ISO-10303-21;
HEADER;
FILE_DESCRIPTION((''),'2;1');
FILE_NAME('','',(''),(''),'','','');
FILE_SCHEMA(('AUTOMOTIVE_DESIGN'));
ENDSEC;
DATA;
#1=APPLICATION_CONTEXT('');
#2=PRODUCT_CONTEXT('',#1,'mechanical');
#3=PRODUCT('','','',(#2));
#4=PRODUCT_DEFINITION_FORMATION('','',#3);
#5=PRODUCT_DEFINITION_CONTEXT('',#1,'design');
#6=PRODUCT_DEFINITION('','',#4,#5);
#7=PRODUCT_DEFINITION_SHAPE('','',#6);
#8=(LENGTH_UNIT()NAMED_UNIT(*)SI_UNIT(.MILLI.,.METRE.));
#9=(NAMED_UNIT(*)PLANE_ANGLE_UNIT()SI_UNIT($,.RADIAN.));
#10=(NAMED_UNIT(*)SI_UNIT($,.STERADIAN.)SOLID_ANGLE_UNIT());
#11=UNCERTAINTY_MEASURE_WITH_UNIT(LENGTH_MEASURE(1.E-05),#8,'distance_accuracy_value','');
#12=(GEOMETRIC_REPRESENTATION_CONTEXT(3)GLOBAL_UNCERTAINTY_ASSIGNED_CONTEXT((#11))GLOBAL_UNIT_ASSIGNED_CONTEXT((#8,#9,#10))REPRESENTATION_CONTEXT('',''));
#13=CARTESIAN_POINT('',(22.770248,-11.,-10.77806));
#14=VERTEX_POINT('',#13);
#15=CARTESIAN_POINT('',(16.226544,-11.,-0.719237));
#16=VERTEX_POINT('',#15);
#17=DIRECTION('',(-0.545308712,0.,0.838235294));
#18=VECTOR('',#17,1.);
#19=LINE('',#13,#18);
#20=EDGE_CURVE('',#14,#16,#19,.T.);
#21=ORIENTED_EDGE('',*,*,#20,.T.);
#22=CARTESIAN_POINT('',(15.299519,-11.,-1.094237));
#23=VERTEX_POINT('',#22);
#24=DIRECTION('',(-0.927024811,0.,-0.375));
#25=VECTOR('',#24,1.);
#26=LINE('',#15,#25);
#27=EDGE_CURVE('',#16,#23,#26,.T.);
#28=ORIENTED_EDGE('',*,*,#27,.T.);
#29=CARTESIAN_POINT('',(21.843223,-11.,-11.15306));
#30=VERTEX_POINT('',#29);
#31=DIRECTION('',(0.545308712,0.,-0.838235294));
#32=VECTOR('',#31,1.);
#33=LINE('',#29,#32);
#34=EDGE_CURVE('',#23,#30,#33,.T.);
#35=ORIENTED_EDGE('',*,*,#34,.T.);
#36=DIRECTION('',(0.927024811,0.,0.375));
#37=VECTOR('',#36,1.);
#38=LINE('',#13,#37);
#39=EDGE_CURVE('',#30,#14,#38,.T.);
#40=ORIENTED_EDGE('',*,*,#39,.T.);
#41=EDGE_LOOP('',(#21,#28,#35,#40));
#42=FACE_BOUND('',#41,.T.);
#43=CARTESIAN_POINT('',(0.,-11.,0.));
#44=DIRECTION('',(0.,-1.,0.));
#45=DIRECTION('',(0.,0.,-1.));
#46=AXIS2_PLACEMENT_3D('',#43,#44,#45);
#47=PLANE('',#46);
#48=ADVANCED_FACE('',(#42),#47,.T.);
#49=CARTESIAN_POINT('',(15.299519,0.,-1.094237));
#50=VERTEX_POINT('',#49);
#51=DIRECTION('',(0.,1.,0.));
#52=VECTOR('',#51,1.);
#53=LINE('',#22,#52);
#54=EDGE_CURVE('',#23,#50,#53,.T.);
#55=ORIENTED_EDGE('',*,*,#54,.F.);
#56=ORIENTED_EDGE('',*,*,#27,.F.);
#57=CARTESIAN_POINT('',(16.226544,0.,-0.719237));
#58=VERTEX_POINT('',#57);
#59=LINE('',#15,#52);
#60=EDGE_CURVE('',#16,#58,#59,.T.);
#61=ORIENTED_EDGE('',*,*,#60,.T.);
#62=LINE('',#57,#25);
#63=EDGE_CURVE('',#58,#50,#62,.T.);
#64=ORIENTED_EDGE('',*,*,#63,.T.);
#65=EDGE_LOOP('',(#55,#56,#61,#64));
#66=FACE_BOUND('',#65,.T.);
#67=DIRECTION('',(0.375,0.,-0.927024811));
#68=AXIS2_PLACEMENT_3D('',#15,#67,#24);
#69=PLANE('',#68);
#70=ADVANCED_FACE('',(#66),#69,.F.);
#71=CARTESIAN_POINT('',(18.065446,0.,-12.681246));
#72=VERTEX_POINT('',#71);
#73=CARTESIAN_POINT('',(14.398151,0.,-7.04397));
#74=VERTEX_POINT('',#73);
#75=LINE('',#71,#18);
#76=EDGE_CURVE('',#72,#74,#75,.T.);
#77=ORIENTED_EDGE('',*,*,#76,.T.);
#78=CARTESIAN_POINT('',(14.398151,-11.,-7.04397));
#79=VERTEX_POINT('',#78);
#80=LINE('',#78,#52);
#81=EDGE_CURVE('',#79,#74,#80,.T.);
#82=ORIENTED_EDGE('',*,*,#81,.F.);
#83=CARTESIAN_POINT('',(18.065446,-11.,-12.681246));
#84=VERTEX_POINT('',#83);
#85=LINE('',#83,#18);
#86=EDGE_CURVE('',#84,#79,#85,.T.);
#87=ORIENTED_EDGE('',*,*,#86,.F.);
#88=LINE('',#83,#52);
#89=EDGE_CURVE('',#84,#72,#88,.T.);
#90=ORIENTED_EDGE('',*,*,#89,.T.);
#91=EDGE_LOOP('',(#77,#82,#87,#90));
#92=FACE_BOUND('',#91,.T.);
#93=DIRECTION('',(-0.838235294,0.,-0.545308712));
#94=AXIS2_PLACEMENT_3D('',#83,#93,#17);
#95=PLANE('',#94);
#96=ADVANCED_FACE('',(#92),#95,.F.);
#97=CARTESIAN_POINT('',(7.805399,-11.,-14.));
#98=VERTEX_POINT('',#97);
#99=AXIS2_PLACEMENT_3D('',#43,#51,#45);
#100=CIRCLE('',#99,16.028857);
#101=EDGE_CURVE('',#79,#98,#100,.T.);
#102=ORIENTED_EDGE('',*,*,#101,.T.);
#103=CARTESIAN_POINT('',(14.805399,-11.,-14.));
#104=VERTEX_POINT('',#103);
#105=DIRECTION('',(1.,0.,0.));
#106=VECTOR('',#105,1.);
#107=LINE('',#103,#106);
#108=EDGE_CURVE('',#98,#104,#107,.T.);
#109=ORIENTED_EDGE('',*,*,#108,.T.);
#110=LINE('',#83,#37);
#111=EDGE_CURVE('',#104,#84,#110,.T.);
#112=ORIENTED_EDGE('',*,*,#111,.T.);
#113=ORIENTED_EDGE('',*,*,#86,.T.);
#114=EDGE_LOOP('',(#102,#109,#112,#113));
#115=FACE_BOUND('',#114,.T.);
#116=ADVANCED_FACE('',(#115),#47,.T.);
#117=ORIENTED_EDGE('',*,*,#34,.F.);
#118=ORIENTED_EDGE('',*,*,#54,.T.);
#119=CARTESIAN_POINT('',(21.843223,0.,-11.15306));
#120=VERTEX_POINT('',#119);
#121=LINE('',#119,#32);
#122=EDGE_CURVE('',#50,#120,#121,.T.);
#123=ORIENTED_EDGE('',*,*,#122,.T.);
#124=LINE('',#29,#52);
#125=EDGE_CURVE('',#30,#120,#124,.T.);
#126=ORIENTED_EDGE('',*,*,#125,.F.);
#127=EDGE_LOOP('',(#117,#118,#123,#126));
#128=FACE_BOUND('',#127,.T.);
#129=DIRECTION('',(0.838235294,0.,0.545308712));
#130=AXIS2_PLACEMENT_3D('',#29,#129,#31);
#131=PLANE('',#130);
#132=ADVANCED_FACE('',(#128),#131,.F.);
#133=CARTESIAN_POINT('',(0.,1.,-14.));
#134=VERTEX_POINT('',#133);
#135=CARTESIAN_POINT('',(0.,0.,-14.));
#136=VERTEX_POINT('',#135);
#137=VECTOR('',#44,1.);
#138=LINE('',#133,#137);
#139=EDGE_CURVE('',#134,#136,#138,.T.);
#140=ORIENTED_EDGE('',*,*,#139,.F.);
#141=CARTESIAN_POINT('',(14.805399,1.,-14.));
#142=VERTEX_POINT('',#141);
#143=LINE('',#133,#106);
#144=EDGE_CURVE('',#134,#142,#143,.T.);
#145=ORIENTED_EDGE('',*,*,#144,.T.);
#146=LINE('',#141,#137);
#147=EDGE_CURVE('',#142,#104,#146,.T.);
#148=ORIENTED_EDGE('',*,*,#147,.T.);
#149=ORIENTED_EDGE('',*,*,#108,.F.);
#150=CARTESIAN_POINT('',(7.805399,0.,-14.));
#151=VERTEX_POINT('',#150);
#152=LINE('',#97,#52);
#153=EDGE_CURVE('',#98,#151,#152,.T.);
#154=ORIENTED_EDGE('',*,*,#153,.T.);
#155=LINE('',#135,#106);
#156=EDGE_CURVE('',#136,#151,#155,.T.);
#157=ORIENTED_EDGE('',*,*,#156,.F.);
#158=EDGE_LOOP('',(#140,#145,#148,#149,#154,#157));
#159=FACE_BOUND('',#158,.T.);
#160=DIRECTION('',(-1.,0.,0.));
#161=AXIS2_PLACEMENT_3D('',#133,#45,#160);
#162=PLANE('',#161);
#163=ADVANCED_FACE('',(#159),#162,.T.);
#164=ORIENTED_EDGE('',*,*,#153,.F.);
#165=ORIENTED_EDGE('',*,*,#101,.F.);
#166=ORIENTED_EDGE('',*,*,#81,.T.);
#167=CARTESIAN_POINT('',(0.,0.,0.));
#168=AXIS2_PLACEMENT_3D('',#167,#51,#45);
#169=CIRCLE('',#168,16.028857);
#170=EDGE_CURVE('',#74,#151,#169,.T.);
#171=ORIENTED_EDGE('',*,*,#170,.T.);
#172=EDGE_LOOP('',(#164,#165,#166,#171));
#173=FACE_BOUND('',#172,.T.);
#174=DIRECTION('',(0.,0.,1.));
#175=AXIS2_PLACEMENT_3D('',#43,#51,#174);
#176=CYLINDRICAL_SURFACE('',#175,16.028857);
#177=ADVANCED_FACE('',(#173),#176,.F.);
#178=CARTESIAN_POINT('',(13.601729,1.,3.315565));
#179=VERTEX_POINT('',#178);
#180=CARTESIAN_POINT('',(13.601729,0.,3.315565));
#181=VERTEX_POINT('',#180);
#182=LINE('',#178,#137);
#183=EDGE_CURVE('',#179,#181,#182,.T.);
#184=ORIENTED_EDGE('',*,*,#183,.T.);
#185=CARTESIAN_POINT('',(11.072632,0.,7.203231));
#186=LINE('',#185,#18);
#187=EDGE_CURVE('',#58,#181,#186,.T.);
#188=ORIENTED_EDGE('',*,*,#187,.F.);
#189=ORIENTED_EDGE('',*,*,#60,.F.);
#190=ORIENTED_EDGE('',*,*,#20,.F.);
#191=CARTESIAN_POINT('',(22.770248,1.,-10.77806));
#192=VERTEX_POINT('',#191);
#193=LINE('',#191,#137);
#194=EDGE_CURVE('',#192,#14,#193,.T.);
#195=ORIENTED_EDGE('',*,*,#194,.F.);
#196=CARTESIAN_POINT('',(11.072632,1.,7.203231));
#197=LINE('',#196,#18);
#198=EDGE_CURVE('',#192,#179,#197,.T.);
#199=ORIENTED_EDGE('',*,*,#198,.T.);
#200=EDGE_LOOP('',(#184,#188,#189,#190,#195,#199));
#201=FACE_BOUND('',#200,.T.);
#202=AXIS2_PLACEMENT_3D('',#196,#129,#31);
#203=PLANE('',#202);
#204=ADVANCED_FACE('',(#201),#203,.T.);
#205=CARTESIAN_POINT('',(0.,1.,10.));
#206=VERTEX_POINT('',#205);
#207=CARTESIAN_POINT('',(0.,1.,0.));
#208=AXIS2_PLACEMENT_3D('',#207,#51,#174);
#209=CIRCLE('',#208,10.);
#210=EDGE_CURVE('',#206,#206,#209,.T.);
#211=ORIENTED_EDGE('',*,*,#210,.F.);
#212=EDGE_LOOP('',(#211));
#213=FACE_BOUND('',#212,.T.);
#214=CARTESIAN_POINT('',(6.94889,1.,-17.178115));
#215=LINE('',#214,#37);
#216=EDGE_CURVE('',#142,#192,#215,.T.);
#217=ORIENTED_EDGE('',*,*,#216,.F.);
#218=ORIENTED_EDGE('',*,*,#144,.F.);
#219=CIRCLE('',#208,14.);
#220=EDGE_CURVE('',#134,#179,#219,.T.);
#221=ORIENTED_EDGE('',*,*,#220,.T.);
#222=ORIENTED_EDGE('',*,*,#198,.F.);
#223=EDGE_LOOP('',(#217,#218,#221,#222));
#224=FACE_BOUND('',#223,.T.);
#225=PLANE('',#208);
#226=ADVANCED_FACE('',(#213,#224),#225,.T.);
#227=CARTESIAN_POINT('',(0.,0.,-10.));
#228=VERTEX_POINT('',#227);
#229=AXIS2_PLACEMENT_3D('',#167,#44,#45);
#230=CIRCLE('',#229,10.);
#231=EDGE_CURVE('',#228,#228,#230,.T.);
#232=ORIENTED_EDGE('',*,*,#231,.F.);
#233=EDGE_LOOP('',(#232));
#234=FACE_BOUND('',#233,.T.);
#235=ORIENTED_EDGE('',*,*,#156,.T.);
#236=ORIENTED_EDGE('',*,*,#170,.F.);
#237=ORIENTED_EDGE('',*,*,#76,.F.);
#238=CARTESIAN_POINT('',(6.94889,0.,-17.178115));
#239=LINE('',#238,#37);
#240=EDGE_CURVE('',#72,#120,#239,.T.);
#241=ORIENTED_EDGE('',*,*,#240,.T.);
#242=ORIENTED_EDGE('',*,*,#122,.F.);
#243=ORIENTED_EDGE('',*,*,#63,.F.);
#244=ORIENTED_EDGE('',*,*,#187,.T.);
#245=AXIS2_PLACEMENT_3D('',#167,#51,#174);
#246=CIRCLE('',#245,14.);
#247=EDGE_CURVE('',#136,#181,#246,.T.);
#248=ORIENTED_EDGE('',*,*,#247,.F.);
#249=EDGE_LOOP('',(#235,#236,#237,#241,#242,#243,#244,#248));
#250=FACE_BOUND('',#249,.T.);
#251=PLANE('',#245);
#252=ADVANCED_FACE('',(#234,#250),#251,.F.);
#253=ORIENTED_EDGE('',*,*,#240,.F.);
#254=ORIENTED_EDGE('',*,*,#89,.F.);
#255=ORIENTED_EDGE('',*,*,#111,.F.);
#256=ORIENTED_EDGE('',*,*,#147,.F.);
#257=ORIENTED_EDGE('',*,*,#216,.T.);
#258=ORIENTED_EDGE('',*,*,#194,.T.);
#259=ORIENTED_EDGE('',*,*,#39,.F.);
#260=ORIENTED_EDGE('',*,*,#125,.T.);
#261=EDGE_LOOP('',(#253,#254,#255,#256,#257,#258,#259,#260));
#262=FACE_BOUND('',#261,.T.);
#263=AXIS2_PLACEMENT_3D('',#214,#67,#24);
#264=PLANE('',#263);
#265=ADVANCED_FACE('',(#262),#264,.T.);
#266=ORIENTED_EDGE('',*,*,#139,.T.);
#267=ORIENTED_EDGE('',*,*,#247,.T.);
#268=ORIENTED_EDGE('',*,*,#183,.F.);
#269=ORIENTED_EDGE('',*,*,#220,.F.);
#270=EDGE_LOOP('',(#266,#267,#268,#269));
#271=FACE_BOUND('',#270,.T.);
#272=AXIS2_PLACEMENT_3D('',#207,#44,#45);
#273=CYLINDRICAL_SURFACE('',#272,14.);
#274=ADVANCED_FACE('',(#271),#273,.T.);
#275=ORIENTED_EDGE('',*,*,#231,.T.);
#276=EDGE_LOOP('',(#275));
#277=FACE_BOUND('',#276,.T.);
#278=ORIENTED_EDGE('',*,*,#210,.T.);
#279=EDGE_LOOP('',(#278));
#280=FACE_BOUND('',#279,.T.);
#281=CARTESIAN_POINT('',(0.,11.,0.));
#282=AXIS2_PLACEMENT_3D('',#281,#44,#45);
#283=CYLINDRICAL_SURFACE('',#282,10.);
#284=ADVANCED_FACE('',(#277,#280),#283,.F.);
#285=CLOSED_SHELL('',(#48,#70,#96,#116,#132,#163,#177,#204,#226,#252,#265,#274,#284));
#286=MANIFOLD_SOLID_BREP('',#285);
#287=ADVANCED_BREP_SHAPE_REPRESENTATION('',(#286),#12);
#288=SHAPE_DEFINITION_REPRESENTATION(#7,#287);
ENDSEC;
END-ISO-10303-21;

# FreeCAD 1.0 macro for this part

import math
import FreeCAD as App
import Part
import Sketcher

V = App.Vector
Q = App.Units.Quantity


def add_polygon(sketch, points):
    """Adds a closed chain of lines whose ends are joined by coincident constraints."""
    first, n = sketch.GeometryCount, len(points)
    for a, b in zip(points, points[1:] + points[:1]):
        sketch.addGeometry(Part.LineSegment(App.Vector(*a, 0), App.Vector(*b, 0)), False)
    for i in range(n):
        sketch.addConstraint(Sketcher.Constraint("Coincident", first + i, 2, first + (i + 1) % n, 1))

doc = App.newDocument("Part")
params = doc.addObject("Spreadsheet::Sheet", "Params")
for row, (alias, value) in enumerate([
    ("sketch1_radius", "14 mm"),
    ("pad1_length", "1 mm"),
    ("sketch2_length", "1 mm"),
    ("sketch2_length2", "12 mm"),
    ("pad2_length", "11 mm"),
    ("sketch3_width", "7 mm"),
    ("pad3_length", "11 mm"),
    ("sketch4_diameter", "20 mm"),
    ("pocket1_length", "11 mm"),
], start=1):
    params.set(f"A{row}", alias)
    params.set(f"B{row}", "=" + value)
    params.setAlias(f"B{row}", alias)

body = doc.addObject("PartDesign::Body", "Body")

sketch1 = doc.addObject("Sketcher::SketchObject", "Sketch")
body.addObject(sketch1)
sketch1.AttachmentSupport = (doc.XZ_Plane, [""])
sketch1.MapMode = "FlatFace"
sketch1.addGeometry([
    Part.ArcOfCircle(Part.Circle(V(0, 0, 0), V(0, 0, 1), 14), math.radians(14), math.radians(270)),
    Part.LineSegment(V(14, 3, 0), V(23, -11, 0)),
    Part.LineSegment(V(23, -11, 0), V(15, -14, 0)),
    Part.LineSegment(V(15, -14, 0), V(0, -14, 0)),
], False)
sketch1.addConstraint([
    Sketcher.Constraint("Coincident", 0, 1, 1, 1),
    Sketcher.Constraint("Coincident", 1, 2, 2, 1),
    Sketcher.Constraint("Coincident", 2, 2, 3, 1),
    Sketcher.Constraint("Tangent", 3, 2, 0, 2),
    Sketcher.Constraint("Horizontal", 3),
    Sketcher.Constraint("Coincident", 0, 3, -1, 1),
    Sketcher.Constraint("Radius", 0, Q("14 mm")),
    Sketcher.Constraint("DistanceX", 3, 2, 3, 1, Q("14.805399 mm")),
    Sketcher.Constraint("Distance", 2, Q("8.59184 mm")),
    Sketcher.Constraint("DistanceX", -1, 1, 0, 1, Q("13.601729 mm")),
    Sketcher.Constraint("DistanceX", -1, 1, 1, 2, Q("22.770248 mm")),
])
sketch1.setExpression("Constraints[6]", "Params.sketch1_radius")
pad1 = doc.addObject("PartDesign::Pad", "Pad")
body.addObject(pad1)
pad1.Profile = sketch1
pad1.setExpression("Length", "Params.pad1_length")
pad1.Reversed = True

sketch2 = doc.addObject("Sketcher::SketchObject", "Sketch001")
body.addObject(sketch2)
sketch2.AttachmentSupport = (doc.XZ_Plane, [""])
sketch2.MapMode = "FlatFace"
add_polygon(sketch2, [(21.8, -11.2), (22.8, -10.8), (16.2, -0.7), (15.3, -1.1)])
sketch2.addConstraint([
    Sketcher.Constraint("Parallel", 0, 2),
    Sketcher.Constraint("Parallel", 1, 3),
    Sketcher.Constraint("Distance", 0, Q("1 mm")),
    Sketcher.Constraint("Distance", 1, Q("12 mm")),
    Sketcher.Constraint("DistanceY", 2, 2, 1, 2, Q("0.375 mm")),
    Sketcher.Constraint("DistanceX", -1, 1, 0, 2, Q("22.770248 mm")),
    Sketcher.Constraint("DistanceY", 0, 2, -1, 1, Q("10.77806 mm")),
    Sketcher.Constraint("DistanceX", -1, 1, 2, 2, Q("15.299519 mm")),
])
sketch2.setExpression("Constraints[6]", "Params.sketch2_length")
sketch2.setExpression("Constraints[7]", "Params.sketch2_length2")
pad2 = doc.addObject("PartDesign::Pad", "Pad001")
body.addObject(pad2)
pad2.Profile = sketch2
pad2.setExpression("Length", "Params.pad2_length")

sketch3 = doc.addObject("Sketcher::SketchObject", "Sketch002")
body.addObject(sketch3)
sketch3.AttachmentSupport = (doc.XZ_Plane, [""])
sketch3.MapMode = "FlatFace"
sketch3.addGeometry([
    Part.LineSegment(V(18.1, -12.7, 0), V(14.4, -7, 0)),
    Part.ArcOfCircle(Part.Circle(V(0, 0, 0), V(0, 0, 1), 16), math.radians(-61), math.radians(-26)),
    Part.LineSegment(V(7.8, -14, 0), V(14.8, -14, 0)),
    Part.LineSegment(V(14.8, -14, 0), V(18.1, -12.7, 0)),
], False)
sketch3.addConstraint([
    Sketcher.Constraint("Coincident", 0, 2, 1, 2),
    Sketcher.Constraint("Coincident", 1, 1, 2, 1),
    Sketcher.Constraint("Coincident", 2, 2, 3, 1),
    Sketcher.Constraint("Coincident", 3, 2, 0, 1),
    Sketcher.Constraint("Horizontal", 2),
    Sketcher.Constraint("Coincident", 1, 3, -1, 1),
    Sketcher.Constraint("DistanceX", 2, 1, 2, 2, Q("7 mm")),
    Sketcher.Constraint("DistanceY", 1, 1, -1, 1, Q("14 mm")),
    Sketcher.Constraint("Radius", 1, Q("16.028857 mm")),
    Sketcher.Constraint("Distance", 0, Q("6.725172 mm")),
    Sketcher.Constraint("DistanceX", -1, 1, 0, 2, Q("14.398151 mm")),
    Sketcher.Constraint("Distance", 3, Q("3.516676 mm")),
])
sketch3.setExpression("Constraints[6]", "Params.sketch3_width")
pad3 = doc.addObject("PartDesign::Pad", "Pad002")
body.addObject(pad3)
pad3.Profile = sketch3
pad3.setExpression("Length", "Params.pad3_length")

sketch4 = doc.addObject("Sketcher::SketchObject", "Sketch003")
body.addObject(sketch4)
sketch4.AttachmentSupport = (doc.XZ_Plane, [""])
sketch4.MapMode = "FlatFace"
sketch4.addGeometry(Part.Circle(V(0, 0, 0), V(0, 0, 1), 10), False)
sketch4.addConstraint([
    Sketcher.Constraint("Coincident", 0, 3, -1, 1),
    Sketcher.Constraint("Diameter", 0, Q("20 mm")),
])
sketch4.setExpression("Constraints[1]", "Params.sketch4_diameter")
pocket1 = doc.addObject("PartDesign::Pocket", "Pocket")
body.addObject(pocket1)
pocket1.Profile = sketch4
pocket1.setExpression("Length", "Params.pocket1_length")

doc.recompute()
